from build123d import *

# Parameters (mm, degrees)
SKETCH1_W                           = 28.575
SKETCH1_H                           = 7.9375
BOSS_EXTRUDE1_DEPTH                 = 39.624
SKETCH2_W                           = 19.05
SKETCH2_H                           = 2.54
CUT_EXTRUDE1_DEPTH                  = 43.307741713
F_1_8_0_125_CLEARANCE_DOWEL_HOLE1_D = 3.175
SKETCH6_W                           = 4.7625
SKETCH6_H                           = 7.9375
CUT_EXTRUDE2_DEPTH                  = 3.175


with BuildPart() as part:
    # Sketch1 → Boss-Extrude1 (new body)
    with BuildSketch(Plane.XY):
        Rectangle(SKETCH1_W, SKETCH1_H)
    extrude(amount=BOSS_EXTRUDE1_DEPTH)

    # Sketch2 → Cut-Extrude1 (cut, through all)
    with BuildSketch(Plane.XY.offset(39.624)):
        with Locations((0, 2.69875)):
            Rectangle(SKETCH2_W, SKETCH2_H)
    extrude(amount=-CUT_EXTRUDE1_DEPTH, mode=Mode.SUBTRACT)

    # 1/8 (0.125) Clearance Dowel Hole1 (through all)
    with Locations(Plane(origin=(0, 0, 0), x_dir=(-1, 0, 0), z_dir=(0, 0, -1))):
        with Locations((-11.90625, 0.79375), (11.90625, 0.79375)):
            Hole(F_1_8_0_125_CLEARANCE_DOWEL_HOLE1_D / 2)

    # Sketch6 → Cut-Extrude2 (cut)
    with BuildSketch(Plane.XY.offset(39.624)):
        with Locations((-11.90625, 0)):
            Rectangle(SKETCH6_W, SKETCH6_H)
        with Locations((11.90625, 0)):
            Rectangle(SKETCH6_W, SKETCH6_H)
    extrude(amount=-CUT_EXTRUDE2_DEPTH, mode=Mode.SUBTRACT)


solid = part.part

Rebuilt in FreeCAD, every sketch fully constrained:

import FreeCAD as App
import Part
import Sketcher
from FreeCAD import Vector
Q = App.Units.Quantity

doc = App.newDocument("Part")
body = doc.addObject("PartDesign::Body", "Body")

# Sketch on XY plane
sketch1 = body.newObject("Sketcher::SketchObject", "Sketch")
sketch1.AttachmentSupport = (doc.getObject("XY_Plane"), [""])
sketch1.MapMode = "FlatFace"
sketch1.addGeometry([
    Part.LineSegment(Vector(-14, 4, 0), Vector(-14, -4, 0)),
    Part.LineSegment(Vector(-14, -4, 0), Vector(14, -4, 0)),
    Part.LineSegment(Vector(14, -4, 0), Vector(14, 4, 0)),
    Part.LineSegment(Vector(14, 4, 0), Vector(-14, 4, 0)),
], False)
sketch1.addConstraint([
    Sketcher.Constraint("Coincident", 0, 2, 1, 1),
    Sketcher.Constraint("Coincident", 1, 2, 2, 1),
    Sketcher.Constraint("Coincident", 2, 2, 3, 1),
    Sketcher.Constraint("Coincident", 3, 2, 0, 1),
    Sketcher.Constraint("Vertical", 0),
    Sketcher.Constraint("Horizontal", 1),
    Sketcher.Constraint("Vertical", 2),
    Sketcher.Constraint("Horizontal", 3),
    Sketcher.Constraint("Symmetric", 0, 2, 2, 2, -1, 1),
    Sketcher.Constraint("DistanceX", 1, 1, 1, 2, Q("1.125 in")),
    Sketcher.Constraint("DistanceY", 0, 2, 0, 1, Q("0.3125 in")),
])
pad1 = body.newObject("PartDesign::Pad", "Pad")
pad1.Profile = sketch1
pad1.Length = Q("1.56 in")

# Sketch on XY plane
sketch2 = body.newObject("Sketcher::SketchObject", "Sketch001")
sketch2.AttachmentSupport = (doc.getObject("XY_Plane"), [""])
sketch2.MapMode = "FlatFace"
sketch2.AttachmentOffset = App.Placement(Vector(0, 0, 1.56 * 25.4), App.Rotation())
sketch2.addGeometry([
    Part.LineSegment(Vector(-9.5, 4, 0), Vector(-9.5, 1.4, 0)),
    Part.LineSegment(Vector(-9.5, 1.4, 0), Vector(9.5, 1.4, 0)),
    Part.LineSegment(Vector(9.5, 1.4, 0), Vector(9.5, 4, 0)),
    Part.LineSegment(Vector(9.5, 4, 0), Vector(-9.5, 4, 0)),
], False)
sketch2.addConstraint([
    Sketcher.Constraint("Coincident", 0, 2, 1, 1),
    Sketcher.Constraint("Coincident", 1, 2, 2, 1),
    Sketcher.Constraint("Coincident", 2, 2, 3, 1),
    Sketcher.Constraint("Coincident", 3, 2, 0, 1),
    Sketcher.Constraint("Vertical", 0),
    Sketcher.Constraint("Horizontal", 1),
    Sketcher.Constraint("Vertical", 2),
    Sketcher.Constraint("Horizontal", 3),
    Sketcher.Constraint("DistanceY", 0, 2, 0, 1, Q("0.1 in")),
    Sketcher.Constraint("DistanceX", 1, 1, 1, 2, Q("0.75 in")),
    Sketcher.Constraint("DistanceX", 0, 2, -1, 1, Q("0.375 in")),
    Sketcher.Constraint("DistanceY", -1, 1, 2, 2, Q("0.15625 in")),
])
pocket1 = body.newObject("PartDesign::Pocket", "Pocket")
pocket1.Profile = sketch2
pocket1.Type = "ThroughAll"

# Sketch on XY plane
sketch3 = body.newObject("Sketcher::SketchObject", "Sketch002")
sketch3.AttachmentSupport = (doc.getObject("XY_Plane"), [""])
sketch3.MapMode = "FlatFace"
sketch3.addGeometry([
    Part.Circle(Vector(11.9, 0.8, 0), Vector(0, 0, 1), 1.6),
    Part.Circle(Vector(-11.9, 0.8, 0), Vector(0, 0, 1), 1.6),
], False)
sketch3.addConstraint([
    Sketcher.Constraint("Equal", 0, 1),
    Sketcher.Constraint("Symmetric", 0, 3, 1, 3, -2),
    Sketcher.Constraint("Diameter", 0, Q("0.125 in")),
    Sketcher.Constraint("DistanceX", -1, 1, 0, 3, Q("0.46875 in")),
    Sketcher.Constraint("DistanceY", -1, 1, 0, 3, Q("0.03125 in")),
])
doc.recompute()
hole = body.newObject("PartDesign::Hole", "Hole")
hole.Profile = sketch3
hole.ThreadType = "None"
hole.Diameter = Q("0.125 in")
hole.DepthType = "ThroughAll"
hole.Reversed = True

# Sketch on XY plane
sketch4 = body.newObject("Sketcher::SketchObject", "Sketch003")
sketch4.AttachmentSupport = (doc.getObject("XY_Plane"), [""])
sketch4.MapMode = "FlatFace"
sketch4.AttachmentOffset = App.Placement(Vector(0, 0, 1.56 * 25.4), App.Rotation())
sketch4.addGeometry([
    Part.LineSegment(Vector(-14.3, 4, 0), Vector(-14.3, -4, 0)),  # 0
    Part.LineSegment(Vector(-14.3, -4, 0), Vector(-9.5, -4, 0)),  # 1
    Part.LineSegment(Vector(-9.5, -4, 0), Vector(-9.5, 4, 0)),  # 2
    Part.LineSegment(Vector(-9.5, 4, 0), Vector(-14.3, 4, 0)),  # 3
    Part.LineSegment(Vector(9.5, 4, 0), Vector(9.5, -4, 0)),  # 4
    Part.LineSegment(Vector(9.5, -4, 0), Vector(14.3, -4, 0)),  # 5
    Part.LineSegment(Vector(14.3, -4, 0), Vector(14.3, 4, 0)),  # 6
    Part.LineSegment(Vector(14.3, 4, 0), Vector(9.5, 4, 0)),  # 7
], False)
sketch4.addConstraint([
    Sketcher.Constraint("Coincident", 0, 2, 1, 1),
    Sketcher.Constraint("Coincident", 1, 2, 2, 1),
    Sketcher.Constraint("Coincident", 2, 2, 3, 1),
    Sketcher.Constraint("Coincident", 3, 2, 0, 1),
    Sketcher.Constraint("Coincident", 4, 2, 5, 1),
    Sketcher.Constraint("Coincident", 5, 2, 6, 1),
    Sketcher.Constraint("Coincident", 6, 2, 7, 1),
    Sketcher.Constraint("Coincident", 7, 2, 4, 1),
    Sketcher.Constraint("Vertical", 0),
    Sketcher.Constraint("Horizontal", 1),
    Sketcher.Constraint("Vertical", 2),
    Sketcher.Constraint("Horizontal", 3),
    Sketcher.Constraint("Vertical", 4),
    Sketcher.Constraint("Horizontal", 5),
    Sketcher.Constraint("Vertical", 6),
    Sketcher.Constraint("Horizontal", 7),
    Sketcher.Constraint("Symmetric", 2, 2, 4, 2, -1, 1),
    Sketcher.Constraint("Symmetric", 0, 2, 6, 2, -1, 1),
    Sketcher.Constraint("Horizontal", 1, 2, 4, 2),
    Sketcher.Constraint("DistanceX", 1, 1, 1, 2, Q("0.1875 in")),
    Sketcher.Constraint("DistanceY", 0, 2, 0, 1, Q("0.3125 in")),
    Sketcher.Constraint("DistanceX", 1, 2, 4, 2, Q("0.75 in")),
])
pocket2 = body.newObject("PartDesign::Pocket", "Pocket001")
pocket2.Profile = sketch4
pocket2.Length = Q("0.125 in")

doc.recompute()
